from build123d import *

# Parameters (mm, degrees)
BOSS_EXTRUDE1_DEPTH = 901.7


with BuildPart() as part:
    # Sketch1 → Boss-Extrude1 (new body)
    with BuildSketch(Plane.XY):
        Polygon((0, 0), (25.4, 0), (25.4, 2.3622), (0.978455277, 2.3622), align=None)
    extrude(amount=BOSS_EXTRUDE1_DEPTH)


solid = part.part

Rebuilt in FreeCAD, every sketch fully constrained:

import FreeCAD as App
import Part
import Sketcher

V = App.Vector
Q = App.Units.Quantity

doc = App.newDocument("Part")
body = doc.addObject("PartDesign::Body", "Body")

# Sketch on XY plane
sketch1 = body.newObject("Sketcher::SketchObject", "Sketch")
sketch1.AttachmentSupport = (doc.getObject("XY_Plane"), [""])
sketch1.MapMode = "FlatFace"
sketch1.addGeometry([
    Part.LineSegment(V(0, 0, 0), V(25.4, 0, 0)),
    Part.LineSegment(V(25.4, 0, 0), V(25.4, 2.4, 0)),
    Part.LineSegment(V(25.4, 2.4, 0), V(1, 2.4, 0)),
    Part.LineSegment(V(1, 2.4, 0), V(0, 0, 0)),
], False)
sketch1.addConstraint([
    Sketcher.Constraint("Coincident", 0, 2, 1, 1),
    Sketcher.Constraint("Coincident", 1, 2, 2, 1),
    Sketcher.Constraint("Coincident", 2, 2, 3, 1),
    Sketcher.Constraint("Coincident", 3, 2, 0, 1),
    Sketcher.Constraint("Horizontal", 0),
    Sketcher.Constraint("Vertical", 1),
    Sketcher.Constraint("Horizontal", 2),
    Sketcher.Constraint("Coincident", 3, 2, -1, 1),
    Sketcher.Constraint("DistanceX", 0, 1, 0, 2, Q("1 in")),
    Sketcher.Constraint("Angle", 3, Q("-112.5 deg")),
    Sketcher.Constraint("DistanceY", 1, 1, 1, 2, Q("0.093 in")),
])
pad1 = body.newObject("PartDesign::Pad", "Pad")
pad1.Profile = sketch1
pad1.Length = Q("35.5 in")

doc.recompute()
